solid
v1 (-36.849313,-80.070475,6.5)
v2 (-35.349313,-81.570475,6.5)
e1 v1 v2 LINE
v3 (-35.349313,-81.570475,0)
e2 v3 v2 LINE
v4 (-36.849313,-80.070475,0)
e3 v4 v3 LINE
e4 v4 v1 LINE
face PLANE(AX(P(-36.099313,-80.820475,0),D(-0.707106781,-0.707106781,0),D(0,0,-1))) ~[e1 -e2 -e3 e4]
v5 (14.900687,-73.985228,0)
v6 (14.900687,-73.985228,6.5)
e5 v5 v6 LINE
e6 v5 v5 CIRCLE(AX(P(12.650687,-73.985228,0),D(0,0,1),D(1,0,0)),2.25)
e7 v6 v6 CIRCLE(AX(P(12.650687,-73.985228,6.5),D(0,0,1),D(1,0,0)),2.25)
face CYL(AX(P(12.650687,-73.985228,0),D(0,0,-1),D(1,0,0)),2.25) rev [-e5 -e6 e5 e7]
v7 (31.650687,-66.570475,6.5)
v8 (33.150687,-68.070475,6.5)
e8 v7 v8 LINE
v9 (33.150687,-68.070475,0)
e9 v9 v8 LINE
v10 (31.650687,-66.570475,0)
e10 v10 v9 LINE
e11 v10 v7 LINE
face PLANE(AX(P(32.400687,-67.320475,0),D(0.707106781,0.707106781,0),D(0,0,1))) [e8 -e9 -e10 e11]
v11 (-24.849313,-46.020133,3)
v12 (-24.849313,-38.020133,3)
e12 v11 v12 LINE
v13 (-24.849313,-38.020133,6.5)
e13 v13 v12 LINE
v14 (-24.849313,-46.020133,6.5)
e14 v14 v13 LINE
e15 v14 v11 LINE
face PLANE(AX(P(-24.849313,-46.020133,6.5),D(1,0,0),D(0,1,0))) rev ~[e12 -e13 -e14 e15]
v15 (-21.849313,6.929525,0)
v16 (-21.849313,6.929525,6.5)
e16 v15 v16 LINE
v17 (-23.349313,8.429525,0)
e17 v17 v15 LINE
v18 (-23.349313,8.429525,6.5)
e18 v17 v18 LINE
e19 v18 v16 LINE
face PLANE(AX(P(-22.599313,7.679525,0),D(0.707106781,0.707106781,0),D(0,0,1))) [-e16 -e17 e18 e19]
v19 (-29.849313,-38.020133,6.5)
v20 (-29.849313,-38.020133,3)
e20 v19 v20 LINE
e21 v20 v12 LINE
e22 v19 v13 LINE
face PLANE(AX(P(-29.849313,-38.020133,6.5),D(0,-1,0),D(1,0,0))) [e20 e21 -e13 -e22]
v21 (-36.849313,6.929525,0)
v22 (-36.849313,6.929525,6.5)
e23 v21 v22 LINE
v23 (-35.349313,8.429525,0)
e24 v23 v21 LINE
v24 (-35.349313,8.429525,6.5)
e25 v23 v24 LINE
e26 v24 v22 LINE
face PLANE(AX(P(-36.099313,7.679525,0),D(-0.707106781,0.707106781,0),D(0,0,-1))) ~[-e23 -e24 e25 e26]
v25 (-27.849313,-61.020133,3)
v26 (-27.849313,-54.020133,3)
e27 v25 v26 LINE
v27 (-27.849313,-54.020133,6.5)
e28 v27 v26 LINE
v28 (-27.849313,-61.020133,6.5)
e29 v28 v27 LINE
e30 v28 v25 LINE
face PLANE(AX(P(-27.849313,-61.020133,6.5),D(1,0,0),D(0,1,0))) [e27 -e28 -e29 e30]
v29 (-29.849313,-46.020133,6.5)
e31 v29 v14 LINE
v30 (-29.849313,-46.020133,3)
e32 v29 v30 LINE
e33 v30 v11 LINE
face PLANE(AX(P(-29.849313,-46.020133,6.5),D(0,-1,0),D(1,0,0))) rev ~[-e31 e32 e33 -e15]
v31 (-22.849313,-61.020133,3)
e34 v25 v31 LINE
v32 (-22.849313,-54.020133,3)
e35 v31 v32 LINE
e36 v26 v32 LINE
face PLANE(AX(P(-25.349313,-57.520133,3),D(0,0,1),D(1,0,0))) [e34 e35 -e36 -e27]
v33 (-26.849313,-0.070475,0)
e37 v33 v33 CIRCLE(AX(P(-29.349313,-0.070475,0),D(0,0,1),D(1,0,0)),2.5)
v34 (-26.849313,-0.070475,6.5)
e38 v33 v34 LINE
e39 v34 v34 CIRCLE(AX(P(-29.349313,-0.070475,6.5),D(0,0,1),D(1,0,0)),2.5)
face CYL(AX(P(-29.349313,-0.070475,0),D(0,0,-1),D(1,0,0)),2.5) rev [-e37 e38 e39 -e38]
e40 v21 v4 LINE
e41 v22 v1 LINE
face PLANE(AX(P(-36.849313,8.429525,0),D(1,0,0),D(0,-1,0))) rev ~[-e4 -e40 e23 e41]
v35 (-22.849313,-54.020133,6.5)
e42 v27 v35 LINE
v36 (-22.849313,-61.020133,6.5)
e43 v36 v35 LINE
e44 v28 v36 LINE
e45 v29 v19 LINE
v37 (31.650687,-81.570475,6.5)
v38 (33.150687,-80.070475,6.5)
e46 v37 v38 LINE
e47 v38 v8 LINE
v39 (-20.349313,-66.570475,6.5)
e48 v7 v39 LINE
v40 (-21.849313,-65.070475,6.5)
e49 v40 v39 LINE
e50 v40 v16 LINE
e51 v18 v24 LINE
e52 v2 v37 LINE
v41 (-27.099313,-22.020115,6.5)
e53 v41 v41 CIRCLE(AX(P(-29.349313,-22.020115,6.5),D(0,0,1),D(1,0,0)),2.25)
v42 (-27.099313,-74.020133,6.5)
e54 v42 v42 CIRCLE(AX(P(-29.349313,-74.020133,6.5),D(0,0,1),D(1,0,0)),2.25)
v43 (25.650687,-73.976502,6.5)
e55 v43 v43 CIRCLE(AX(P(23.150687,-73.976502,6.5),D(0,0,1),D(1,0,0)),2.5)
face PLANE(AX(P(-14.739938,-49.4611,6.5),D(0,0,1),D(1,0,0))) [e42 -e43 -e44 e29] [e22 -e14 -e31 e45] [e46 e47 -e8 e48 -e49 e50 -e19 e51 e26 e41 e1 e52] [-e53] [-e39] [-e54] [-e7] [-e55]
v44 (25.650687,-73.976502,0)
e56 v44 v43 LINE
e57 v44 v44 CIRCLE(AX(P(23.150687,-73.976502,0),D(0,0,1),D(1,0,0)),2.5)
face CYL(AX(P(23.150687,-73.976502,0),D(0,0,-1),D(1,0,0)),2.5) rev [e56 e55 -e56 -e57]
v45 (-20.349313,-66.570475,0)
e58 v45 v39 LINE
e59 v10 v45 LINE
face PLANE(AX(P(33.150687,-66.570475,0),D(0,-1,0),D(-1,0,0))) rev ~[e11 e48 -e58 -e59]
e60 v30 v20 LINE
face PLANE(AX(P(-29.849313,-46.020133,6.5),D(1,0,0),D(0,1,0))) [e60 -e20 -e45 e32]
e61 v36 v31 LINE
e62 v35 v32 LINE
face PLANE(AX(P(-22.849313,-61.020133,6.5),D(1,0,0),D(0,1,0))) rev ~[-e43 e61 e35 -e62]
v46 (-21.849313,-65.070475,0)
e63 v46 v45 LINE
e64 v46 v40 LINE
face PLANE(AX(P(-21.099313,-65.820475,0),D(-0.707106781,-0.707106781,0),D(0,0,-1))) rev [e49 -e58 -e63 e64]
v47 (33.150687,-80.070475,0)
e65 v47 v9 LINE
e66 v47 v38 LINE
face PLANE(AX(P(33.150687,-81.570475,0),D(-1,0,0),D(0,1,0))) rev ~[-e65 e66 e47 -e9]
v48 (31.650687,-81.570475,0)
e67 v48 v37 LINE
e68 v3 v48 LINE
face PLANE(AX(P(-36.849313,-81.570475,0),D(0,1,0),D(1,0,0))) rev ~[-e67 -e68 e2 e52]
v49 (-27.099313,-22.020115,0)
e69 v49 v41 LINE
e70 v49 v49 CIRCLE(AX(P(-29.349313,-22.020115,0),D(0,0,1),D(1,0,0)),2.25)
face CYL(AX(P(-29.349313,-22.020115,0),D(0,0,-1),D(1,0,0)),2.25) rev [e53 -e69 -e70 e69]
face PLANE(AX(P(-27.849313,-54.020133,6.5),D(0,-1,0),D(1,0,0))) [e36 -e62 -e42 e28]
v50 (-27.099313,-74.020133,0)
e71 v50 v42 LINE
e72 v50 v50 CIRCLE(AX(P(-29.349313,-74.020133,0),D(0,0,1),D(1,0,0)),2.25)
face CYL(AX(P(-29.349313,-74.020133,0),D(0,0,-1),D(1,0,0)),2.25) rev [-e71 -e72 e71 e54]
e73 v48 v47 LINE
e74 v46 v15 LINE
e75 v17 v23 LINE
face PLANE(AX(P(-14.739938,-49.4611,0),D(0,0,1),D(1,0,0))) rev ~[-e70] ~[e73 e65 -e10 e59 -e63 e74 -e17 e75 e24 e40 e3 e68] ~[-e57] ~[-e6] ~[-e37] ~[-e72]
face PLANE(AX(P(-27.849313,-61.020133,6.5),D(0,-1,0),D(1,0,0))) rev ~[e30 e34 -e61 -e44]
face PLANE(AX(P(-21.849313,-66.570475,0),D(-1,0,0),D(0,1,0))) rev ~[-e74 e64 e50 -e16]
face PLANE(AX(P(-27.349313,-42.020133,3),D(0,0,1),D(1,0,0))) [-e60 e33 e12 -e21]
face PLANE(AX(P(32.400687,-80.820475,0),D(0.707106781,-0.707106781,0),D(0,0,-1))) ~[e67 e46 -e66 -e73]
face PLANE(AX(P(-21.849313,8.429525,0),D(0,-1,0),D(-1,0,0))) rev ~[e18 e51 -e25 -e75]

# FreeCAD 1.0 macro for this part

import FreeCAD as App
import Part
import Sketcher


def edges_at(feature, points):
    """Names of the edges that pass closest to the given points."""
    edges = feature.Shape.Edges
    near = lambda p: min(range(len(edges)), key=lambda i: edges[i].distToShape(Part.Vertex(*p))[0])
    return sorted({f"Edge{near(p) + 1}" for p in points})

doc = App.newDocument("Part")
body = doc.addObject("PartDesign::Body", "Body")

sketch1 = doc.addObject("Sketcher::SketchObject", "Sketch")
body.addObject(sketch1)
sketch1.AttachmentSupport = (doc.XY_Plane, [""])
sketch1.MapMode = "FlatFace"
sketch1.addGeometry([
    Part.LineSegment(App.Vector(-21.8, 8.4, 0), App.Vector(-36.8, 8.4, 0)),
    Part.LineSegment(App.Vector(-36.8, 8.4, 0), App.Vector(-36.8, -81.6, 0)),
    Part.LineSegment(App.Vector(-36.8, -81.6, 0), App.Vector(33.2, -81.6, 0)),
    Part.LineSegment(App.Vector(33.2, -81.6, 0), App.Vector(33.2, -66.6, 0)),
    Part.LineSegment(App.Vector(33.2, -66.6, 0), App.Vector(-21.8, -66.6, 0)),
    Part.LineSegment(App.Vector(-21.8, -66.6, 0), App.Vector(-21.8, 8.4, 0)),
    Part.Circle(App.Vector(-29.3, -74, 0), App.Vector(0, 0, 1), 2.2),
    Part.Circle(App.Vector(12.7, -74, 0), App.Vector(0, 0, 1), 2.2),
    Part.Circle(App.Vector(23.2, -74, 0), App.Vector(0, 0, 1), 2.5),
    Part.Circle(App.Vector(-29.3, -22, 0), App.Vector(0, 0, 1), 2.2),
    Part.Circle(App.Vector(-29.3, -0.1, 0), App.Vector(0, 0, 1), 2.5),
], False)
sketch1.addConstraint([
    Sketcher.Constraint("Coincident", 0, 2, 1, 1),
    Sketcher.Constraint("Coincident", 1, 2, 2, 1),
    Sketcher.Constraint("Coincident", 2, 2, 3, 1),
    Sketcher.Constraint("Coincident", 3, 2, 4, 1),
    Sketcher.Constraint("Coincident", 4, 2, 5, 1),
    Sketcher.Constraint("Coincident", 5, 2, 0, 1),
    Sketcher.Constraint("Horizontal", 0),
    Sketcher.Constraint("Vertical", 1),
    Sketcher.Constraint("Horizontal", 2),
    Sketcher.Constraint("Vertical", 3),
    Sketcher.Constraint("Horizontal", 4),
    Sketcher.Constraint("Vertical", 5),
    Sketcher.Constraint("Equal", 6, 7),
    Sketcher.Constraint("Equal", 7, 9),
    Sketcher.Constraint("Equal", 8, 10),
    Sketcher.Constraint("Vertical", 6, 3, 9, 3),
    Sketcher.Constraint("Vertical", 9, 3, 10, 3),
    Sketcher.Constraint("Equal", 0, 3),
    Sketcher.Constraint("Diameter", 8, 5.0),
    Sketcher.Constraint("Diameter", 6, 4.5),
    Sketcher.Constraint("DistanceX", 0, 2, 0, 1, 15.0),
    Sketcher.Constraint("DistanceX", 2, 1, 2, 2, 70.0),
    Sketcher.Constraint("DistanceY", 1, 2, 1, 1, 90.0),
    Sketcher.Constraint("DistanceX", 6, 3, 7, 3, 42.0),
    Sketcher.Constraint("DistanceX", 0, 2, 8, 3, 60.0),
    Sketcher.Constraint("DistanceX", 7, 3, 8, 3, 10.5),
    Sketcher.Constraint("DistanceY", 10, 3, 0, 2, 8.5),
    Sketcher.Constraint("DistanceY", 8, 3, -1, 1, 73.976502),
    Sketcher.Constraint("DistanceY", 7, 3, -1, 1, 73.985228),
    Sketcher.Constraint("DistanceY", 6, 3, 8, 3, 0.043631),
    Sketcher.Constraint("DistanceY", 9, 3, 10, 3, 21.94964),
    Sketcher.Constraint("DistanceY", 6, 3, 10, 3, 73.949658),
    Sketcher.Constraint("DistanceX", 6, 3, -1, 1, 29.349313),
])
pad1 = doc.addObject("PartDesign::Pad", "Pad")
body.addObject(pad1)
pad1.Profile = sketch1
pad1.Length = 6.5
doc.recompute()

chamfer = doc.addObject("PartDesign::Chamfer", "Chamfer")
body.addObject(chamfer)
chamfer.Base = (pad1, edges_at(pad1, [
    (-21.849, 8.43, 3.25),
    (-36.849, 8.43, 3.25),
    (-36.849, -81.57, 3.25),
    (-21.849, -66.57, 3.25),
    (33.151, -66.57, 3.25),
    (33.151, -81.57, 3.25),
]))
chamfer.Size = 1.5

sketch2 = doc.addObject("Sketcher::SketchObject", "Sketch001")
body.addObject(sketch2)
sketch2.AttachmentSupport = (doc.XY_Plane, [""])
sketch2.MapMode = "FlatFace"
sketch2.AttachmentOffset = App.Placement(App.Vector(0, 0, 6.5), App.Rotation())
sketch2.addGeometry([
    Part.LineSegment(App.Vector(-30, -38, 0), App.Vector(-30, -46, 0)),
    Part.LineSegment(App.Vector(-30, -46, 0), App.Vector(-25, -46, 0)),
    Part.LineSegment(App.Vector(-25, -46, 0), App.Vector(-25, -38, 0)),
    Part.LineSegment(App.Vector(-25, -38, 0), App.Vector(-30, -38, 0)),
    Part.LineSegment(App.Vector(-28, -54, 0), App.Vector(-28, -61, 0)),
    Part.LineSegment(App.Vector(-28, -61, 0), App.Vector(-23, -61, 0)),
    Part.LineSegment(App.Vector(-23, -61, 0), App.Vector(-23, -54, 0)),
    Part.LineSegment(App.Vector(-23, -54, 0), App.Vector(-28, -54, 0)),
], False)
sketch2.addConstraint([
    Sketcher.Constraint("Coincident", 0, 2, 1, 1),
    Sketcher.Constraint("Coincident", 1, 2, 2, 1),
    Sketcher.Constraint("Coincident", 2, 2, 3, 1),
    Sketcher.Constraint("Coincident", 3, 2, 0, 1),
    Sketcher.Constraint("Coincident", 4, 2, 5, 1),
    Sketcher.Constraint("Coincident", 5, 2, 6, 1),
    Sketcher.Constraint("Coincident", 6, 2, 7, 1),
    Sketcher.Constraint("Coincident", 7, 2, 4, 1),
    Sketcher.Constraint("Vertical", 0),
    Sketcher.Constraint("Horizontal", 1),
    Sketcher.Constraint("Vertical", 2),
    Sketcher.Constraint("Horizontal", 3),
    Sketcher.Constraint("Vertical", 4),
    Sketcher.Constraint("Horizontal", 5),
    Sketcher.Constraint("Vertical", 6),
    Sketcher.Constraint("Horizontal", 7),
    Sketcher.Constraint("Equal", 3, 5),
    Sketcher.Constraint("DistanceX", 1, 1, 1, 2, 5.0),
    Sketcher.Constraint("DistanceY", 0, 2, 0, 1, 8.0),
    Sketcher.Constraint("DistanceY", 4, 2, 4, 1, 7.0),
    Sketcher.Constraint("DistanceX", 0, 2, 4, 2, 2.0),
    Sketcher.Constraint("DistanceY", 4, 2, 0, 2, 15.0),
    Sketcher.Constraint("DistanceX", 0, 2, -1, 1, 29.849313),
    Sketcher.Constraint("DistanceY", 0, 2, -1, 1, 46.020133),
])
pocket1 = doc.addObject("PartDesign::Pocket", "Pocket")
body.addObject(pocket1)
pocket1.Profile = sketch2
pocket1.Length = 3.5

doc.recompute()
